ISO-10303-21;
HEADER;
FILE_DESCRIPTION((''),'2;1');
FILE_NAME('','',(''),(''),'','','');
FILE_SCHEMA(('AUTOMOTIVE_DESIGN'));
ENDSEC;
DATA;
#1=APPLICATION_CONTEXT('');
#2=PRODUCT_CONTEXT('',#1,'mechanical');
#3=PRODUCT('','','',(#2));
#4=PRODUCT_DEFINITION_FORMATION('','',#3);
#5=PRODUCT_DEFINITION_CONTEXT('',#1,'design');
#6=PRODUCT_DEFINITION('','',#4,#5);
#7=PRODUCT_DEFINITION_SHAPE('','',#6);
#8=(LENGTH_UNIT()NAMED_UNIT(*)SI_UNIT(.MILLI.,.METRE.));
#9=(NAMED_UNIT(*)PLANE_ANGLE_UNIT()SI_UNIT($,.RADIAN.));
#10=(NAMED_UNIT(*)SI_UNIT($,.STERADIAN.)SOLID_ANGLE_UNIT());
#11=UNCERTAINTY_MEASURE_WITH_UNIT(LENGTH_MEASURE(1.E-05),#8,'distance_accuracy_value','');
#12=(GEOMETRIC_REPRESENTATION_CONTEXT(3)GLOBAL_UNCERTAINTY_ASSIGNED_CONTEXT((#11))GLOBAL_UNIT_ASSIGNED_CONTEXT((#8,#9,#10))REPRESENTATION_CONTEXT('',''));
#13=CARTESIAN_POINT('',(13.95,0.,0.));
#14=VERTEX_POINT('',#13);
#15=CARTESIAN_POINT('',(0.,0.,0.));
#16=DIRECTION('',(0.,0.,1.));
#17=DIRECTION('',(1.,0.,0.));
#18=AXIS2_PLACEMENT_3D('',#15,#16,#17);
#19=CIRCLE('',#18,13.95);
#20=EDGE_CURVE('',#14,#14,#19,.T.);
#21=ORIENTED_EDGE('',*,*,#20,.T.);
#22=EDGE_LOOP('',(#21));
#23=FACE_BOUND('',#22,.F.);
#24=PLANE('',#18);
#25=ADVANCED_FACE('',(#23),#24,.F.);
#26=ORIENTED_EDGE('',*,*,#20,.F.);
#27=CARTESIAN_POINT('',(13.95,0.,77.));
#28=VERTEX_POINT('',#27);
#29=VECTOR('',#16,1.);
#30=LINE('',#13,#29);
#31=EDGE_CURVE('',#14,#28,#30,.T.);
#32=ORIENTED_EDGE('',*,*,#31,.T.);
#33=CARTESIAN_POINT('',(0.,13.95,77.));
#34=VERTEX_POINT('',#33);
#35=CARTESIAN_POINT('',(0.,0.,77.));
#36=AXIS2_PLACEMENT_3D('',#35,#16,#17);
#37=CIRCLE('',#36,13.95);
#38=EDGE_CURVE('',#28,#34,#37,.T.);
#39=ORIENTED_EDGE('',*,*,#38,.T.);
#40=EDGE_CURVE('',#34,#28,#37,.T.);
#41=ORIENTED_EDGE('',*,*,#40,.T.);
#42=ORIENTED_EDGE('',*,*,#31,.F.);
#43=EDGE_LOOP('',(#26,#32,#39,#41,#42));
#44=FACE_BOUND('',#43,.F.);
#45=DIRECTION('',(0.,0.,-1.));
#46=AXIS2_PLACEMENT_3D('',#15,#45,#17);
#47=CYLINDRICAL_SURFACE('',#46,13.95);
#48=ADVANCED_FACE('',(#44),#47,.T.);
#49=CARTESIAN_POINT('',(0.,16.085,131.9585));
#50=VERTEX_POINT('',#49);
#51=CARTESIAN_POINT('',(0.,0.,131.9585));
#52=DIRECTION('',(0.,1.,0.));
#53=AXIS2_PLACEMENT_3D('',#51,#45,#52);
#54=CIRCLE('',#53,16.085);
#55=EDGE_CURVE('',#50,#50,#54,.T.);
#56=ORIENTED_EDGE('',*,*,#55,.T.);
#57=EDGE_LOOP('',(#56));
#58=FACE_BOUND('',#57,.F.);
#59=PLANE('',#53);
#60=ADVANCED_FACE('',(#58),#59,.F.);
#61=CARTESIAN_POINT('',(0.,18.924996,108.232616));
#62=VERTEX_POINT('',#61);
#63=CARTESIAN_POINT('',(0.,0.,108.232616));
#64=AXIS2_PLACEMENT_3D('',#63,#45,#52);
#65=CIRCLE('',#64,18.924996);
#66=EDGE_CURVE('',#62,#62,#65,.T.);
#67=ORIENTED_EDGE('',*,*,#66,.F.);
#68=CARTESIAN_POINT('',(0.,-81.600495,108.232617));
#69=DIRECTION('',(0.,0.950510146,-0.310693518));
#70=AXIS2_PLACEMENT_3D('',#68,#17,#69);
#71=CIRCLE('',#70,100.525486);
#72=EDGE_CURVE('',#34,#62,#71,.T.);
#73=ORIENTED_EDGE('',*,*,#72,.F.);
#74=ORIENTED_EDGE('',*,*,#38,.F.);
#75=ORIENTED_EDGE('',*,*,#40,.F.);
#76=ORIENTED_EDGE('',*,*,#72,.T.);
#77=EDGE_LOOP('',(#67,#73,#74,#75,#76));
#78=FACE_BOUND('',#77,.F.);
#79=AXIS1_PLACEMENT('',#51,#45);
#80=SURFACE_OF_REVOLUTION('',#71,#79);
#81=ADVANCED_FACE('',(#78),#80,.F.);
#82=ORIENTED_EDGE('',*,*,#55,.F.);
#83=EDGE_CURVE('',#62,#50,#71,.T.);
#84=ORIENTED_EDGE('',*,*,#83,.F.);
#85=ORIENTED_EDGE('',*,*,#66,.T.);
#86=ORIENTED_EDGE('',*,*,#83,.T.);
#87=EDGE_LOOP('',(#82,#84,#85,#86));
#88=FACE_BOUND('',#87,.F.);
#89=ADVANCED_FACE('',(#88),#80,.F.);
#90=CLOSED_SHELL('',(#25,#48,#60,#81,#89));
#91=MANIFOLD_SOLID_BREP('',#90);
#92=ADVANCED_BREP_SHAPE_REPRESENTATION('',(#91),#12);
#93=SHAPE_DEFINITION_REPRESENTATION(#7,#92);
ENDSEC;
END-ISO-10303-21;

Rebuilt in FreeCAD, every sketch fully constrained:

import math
import FreeCAD as App
import Part
import Sketcher

doc = App.newDocument("Part")
body = doc.addObject("PartDesign::Body", "Body")

# Sketch on XY plane
sketch1 = doc.addObject("Sketcher::SketchObject", "Sketch")
body.addObject(sketch1)
sketch1.AttachmentSupport = (doc.XY_Plane, [""])
sketch1.MapMode = "FlatFace"
sketch1.addGeometry(Part.Circle(App.Vector(0, 0, 0), App.Vector(0, 0, 1), 14), False)
sketch1.addConstraint(Sketcher.Constraint("Coincident", 0, 3, -1, 1))
sketch1.addConstraint(Sketcher.Constraint("Diameter", 0, 27.9))
pad1 = doc.addObject("PartDesign::Pad", "Pad")
body.addObject(pad1)
pad1.Profile = sketch1
pad1.Length = 77

# Sketch on YZ plane
sketch2 = doc.addObject("Sketcher::SketchObject", "Sketch001")
body.addObject(sketch2)
sketch2.AttachmentSupport = (doc.YZ_Plane, [""])
sketch2.MapMode = "FlatFace"
sketch2.addGeometry(Part.LineSegment(App.Vector(0, 77, 0), App.Vector(14, 77, 0)), False)
sketch2.addGeometry(Part.ArcOfCircle(Part.Circle(App.Vector(-82, 108, 0), App.Vector(0, 0, 1), 101), math.radians(-18), math.radians(14)), False)
sketch2.addGeometry(Part.LineSegment(App.Vector(16, 132, 0), App.Vector(0, 132, 0)), False)
sketch2.addGeometry(Part.LineSegment(App.Vector(0, 132, 0), App.Vector(0, 77, 0)), False)
sketch2.addConstraint(Sketcher.Constraint("Coincident", 0, 2, 1, 1))
sketch2.addConstraint(Sketcher.Constraint("Coincident", 1, 2, 2, 1))
sketch2.addConstraint(Sketcher.Constraint("Coincident", 2, 2, 3, 1))
sketch2.addConstraint(Sketcher.Constraint("Coincident", 3, 2, 0, 1))
sketch2.addConstraint(Sketcher.Constraint("Horizontal", 0))
sketch2.addConstraint(Sketcher.Constraint("Horizontal", 2))
sketch2.addConstraint(Sketcher.Constraint("Vertical", 3))
sketch2.addConstraint(Sketcher.Constraint("PointOnObject", 2, 2, -2))
sketch2.addConstraint(Sketcher.Constraint("DistanceX", 2, 2, 2, 1, 16.085))
sketch2.addConstraint(Sketcher.Constraint("DistanceY", -1, 1, 0, 2, 77.0))
sketch2.addConstraint(Sketcher.Constraint("DistanceX", 0, 1, 0, 2, 13.95))
sketch2.addConstraint(Sketcher.Constraint("Radius", 1, 100.5254))
sketch2.addConstraint(Sketcher.Constraint("DistanceY", 3, 2, 3, 1, 54.9585))
revolution = doc.addObject("PartDesign::Revolution", "Revolution")
body.addObject(revolution)
revolution.Profile = sketch2
revolution.ReferenceAxis = (sketch2, ["V_Axis"])
revolution.Angle = 360

doc.recompute()
